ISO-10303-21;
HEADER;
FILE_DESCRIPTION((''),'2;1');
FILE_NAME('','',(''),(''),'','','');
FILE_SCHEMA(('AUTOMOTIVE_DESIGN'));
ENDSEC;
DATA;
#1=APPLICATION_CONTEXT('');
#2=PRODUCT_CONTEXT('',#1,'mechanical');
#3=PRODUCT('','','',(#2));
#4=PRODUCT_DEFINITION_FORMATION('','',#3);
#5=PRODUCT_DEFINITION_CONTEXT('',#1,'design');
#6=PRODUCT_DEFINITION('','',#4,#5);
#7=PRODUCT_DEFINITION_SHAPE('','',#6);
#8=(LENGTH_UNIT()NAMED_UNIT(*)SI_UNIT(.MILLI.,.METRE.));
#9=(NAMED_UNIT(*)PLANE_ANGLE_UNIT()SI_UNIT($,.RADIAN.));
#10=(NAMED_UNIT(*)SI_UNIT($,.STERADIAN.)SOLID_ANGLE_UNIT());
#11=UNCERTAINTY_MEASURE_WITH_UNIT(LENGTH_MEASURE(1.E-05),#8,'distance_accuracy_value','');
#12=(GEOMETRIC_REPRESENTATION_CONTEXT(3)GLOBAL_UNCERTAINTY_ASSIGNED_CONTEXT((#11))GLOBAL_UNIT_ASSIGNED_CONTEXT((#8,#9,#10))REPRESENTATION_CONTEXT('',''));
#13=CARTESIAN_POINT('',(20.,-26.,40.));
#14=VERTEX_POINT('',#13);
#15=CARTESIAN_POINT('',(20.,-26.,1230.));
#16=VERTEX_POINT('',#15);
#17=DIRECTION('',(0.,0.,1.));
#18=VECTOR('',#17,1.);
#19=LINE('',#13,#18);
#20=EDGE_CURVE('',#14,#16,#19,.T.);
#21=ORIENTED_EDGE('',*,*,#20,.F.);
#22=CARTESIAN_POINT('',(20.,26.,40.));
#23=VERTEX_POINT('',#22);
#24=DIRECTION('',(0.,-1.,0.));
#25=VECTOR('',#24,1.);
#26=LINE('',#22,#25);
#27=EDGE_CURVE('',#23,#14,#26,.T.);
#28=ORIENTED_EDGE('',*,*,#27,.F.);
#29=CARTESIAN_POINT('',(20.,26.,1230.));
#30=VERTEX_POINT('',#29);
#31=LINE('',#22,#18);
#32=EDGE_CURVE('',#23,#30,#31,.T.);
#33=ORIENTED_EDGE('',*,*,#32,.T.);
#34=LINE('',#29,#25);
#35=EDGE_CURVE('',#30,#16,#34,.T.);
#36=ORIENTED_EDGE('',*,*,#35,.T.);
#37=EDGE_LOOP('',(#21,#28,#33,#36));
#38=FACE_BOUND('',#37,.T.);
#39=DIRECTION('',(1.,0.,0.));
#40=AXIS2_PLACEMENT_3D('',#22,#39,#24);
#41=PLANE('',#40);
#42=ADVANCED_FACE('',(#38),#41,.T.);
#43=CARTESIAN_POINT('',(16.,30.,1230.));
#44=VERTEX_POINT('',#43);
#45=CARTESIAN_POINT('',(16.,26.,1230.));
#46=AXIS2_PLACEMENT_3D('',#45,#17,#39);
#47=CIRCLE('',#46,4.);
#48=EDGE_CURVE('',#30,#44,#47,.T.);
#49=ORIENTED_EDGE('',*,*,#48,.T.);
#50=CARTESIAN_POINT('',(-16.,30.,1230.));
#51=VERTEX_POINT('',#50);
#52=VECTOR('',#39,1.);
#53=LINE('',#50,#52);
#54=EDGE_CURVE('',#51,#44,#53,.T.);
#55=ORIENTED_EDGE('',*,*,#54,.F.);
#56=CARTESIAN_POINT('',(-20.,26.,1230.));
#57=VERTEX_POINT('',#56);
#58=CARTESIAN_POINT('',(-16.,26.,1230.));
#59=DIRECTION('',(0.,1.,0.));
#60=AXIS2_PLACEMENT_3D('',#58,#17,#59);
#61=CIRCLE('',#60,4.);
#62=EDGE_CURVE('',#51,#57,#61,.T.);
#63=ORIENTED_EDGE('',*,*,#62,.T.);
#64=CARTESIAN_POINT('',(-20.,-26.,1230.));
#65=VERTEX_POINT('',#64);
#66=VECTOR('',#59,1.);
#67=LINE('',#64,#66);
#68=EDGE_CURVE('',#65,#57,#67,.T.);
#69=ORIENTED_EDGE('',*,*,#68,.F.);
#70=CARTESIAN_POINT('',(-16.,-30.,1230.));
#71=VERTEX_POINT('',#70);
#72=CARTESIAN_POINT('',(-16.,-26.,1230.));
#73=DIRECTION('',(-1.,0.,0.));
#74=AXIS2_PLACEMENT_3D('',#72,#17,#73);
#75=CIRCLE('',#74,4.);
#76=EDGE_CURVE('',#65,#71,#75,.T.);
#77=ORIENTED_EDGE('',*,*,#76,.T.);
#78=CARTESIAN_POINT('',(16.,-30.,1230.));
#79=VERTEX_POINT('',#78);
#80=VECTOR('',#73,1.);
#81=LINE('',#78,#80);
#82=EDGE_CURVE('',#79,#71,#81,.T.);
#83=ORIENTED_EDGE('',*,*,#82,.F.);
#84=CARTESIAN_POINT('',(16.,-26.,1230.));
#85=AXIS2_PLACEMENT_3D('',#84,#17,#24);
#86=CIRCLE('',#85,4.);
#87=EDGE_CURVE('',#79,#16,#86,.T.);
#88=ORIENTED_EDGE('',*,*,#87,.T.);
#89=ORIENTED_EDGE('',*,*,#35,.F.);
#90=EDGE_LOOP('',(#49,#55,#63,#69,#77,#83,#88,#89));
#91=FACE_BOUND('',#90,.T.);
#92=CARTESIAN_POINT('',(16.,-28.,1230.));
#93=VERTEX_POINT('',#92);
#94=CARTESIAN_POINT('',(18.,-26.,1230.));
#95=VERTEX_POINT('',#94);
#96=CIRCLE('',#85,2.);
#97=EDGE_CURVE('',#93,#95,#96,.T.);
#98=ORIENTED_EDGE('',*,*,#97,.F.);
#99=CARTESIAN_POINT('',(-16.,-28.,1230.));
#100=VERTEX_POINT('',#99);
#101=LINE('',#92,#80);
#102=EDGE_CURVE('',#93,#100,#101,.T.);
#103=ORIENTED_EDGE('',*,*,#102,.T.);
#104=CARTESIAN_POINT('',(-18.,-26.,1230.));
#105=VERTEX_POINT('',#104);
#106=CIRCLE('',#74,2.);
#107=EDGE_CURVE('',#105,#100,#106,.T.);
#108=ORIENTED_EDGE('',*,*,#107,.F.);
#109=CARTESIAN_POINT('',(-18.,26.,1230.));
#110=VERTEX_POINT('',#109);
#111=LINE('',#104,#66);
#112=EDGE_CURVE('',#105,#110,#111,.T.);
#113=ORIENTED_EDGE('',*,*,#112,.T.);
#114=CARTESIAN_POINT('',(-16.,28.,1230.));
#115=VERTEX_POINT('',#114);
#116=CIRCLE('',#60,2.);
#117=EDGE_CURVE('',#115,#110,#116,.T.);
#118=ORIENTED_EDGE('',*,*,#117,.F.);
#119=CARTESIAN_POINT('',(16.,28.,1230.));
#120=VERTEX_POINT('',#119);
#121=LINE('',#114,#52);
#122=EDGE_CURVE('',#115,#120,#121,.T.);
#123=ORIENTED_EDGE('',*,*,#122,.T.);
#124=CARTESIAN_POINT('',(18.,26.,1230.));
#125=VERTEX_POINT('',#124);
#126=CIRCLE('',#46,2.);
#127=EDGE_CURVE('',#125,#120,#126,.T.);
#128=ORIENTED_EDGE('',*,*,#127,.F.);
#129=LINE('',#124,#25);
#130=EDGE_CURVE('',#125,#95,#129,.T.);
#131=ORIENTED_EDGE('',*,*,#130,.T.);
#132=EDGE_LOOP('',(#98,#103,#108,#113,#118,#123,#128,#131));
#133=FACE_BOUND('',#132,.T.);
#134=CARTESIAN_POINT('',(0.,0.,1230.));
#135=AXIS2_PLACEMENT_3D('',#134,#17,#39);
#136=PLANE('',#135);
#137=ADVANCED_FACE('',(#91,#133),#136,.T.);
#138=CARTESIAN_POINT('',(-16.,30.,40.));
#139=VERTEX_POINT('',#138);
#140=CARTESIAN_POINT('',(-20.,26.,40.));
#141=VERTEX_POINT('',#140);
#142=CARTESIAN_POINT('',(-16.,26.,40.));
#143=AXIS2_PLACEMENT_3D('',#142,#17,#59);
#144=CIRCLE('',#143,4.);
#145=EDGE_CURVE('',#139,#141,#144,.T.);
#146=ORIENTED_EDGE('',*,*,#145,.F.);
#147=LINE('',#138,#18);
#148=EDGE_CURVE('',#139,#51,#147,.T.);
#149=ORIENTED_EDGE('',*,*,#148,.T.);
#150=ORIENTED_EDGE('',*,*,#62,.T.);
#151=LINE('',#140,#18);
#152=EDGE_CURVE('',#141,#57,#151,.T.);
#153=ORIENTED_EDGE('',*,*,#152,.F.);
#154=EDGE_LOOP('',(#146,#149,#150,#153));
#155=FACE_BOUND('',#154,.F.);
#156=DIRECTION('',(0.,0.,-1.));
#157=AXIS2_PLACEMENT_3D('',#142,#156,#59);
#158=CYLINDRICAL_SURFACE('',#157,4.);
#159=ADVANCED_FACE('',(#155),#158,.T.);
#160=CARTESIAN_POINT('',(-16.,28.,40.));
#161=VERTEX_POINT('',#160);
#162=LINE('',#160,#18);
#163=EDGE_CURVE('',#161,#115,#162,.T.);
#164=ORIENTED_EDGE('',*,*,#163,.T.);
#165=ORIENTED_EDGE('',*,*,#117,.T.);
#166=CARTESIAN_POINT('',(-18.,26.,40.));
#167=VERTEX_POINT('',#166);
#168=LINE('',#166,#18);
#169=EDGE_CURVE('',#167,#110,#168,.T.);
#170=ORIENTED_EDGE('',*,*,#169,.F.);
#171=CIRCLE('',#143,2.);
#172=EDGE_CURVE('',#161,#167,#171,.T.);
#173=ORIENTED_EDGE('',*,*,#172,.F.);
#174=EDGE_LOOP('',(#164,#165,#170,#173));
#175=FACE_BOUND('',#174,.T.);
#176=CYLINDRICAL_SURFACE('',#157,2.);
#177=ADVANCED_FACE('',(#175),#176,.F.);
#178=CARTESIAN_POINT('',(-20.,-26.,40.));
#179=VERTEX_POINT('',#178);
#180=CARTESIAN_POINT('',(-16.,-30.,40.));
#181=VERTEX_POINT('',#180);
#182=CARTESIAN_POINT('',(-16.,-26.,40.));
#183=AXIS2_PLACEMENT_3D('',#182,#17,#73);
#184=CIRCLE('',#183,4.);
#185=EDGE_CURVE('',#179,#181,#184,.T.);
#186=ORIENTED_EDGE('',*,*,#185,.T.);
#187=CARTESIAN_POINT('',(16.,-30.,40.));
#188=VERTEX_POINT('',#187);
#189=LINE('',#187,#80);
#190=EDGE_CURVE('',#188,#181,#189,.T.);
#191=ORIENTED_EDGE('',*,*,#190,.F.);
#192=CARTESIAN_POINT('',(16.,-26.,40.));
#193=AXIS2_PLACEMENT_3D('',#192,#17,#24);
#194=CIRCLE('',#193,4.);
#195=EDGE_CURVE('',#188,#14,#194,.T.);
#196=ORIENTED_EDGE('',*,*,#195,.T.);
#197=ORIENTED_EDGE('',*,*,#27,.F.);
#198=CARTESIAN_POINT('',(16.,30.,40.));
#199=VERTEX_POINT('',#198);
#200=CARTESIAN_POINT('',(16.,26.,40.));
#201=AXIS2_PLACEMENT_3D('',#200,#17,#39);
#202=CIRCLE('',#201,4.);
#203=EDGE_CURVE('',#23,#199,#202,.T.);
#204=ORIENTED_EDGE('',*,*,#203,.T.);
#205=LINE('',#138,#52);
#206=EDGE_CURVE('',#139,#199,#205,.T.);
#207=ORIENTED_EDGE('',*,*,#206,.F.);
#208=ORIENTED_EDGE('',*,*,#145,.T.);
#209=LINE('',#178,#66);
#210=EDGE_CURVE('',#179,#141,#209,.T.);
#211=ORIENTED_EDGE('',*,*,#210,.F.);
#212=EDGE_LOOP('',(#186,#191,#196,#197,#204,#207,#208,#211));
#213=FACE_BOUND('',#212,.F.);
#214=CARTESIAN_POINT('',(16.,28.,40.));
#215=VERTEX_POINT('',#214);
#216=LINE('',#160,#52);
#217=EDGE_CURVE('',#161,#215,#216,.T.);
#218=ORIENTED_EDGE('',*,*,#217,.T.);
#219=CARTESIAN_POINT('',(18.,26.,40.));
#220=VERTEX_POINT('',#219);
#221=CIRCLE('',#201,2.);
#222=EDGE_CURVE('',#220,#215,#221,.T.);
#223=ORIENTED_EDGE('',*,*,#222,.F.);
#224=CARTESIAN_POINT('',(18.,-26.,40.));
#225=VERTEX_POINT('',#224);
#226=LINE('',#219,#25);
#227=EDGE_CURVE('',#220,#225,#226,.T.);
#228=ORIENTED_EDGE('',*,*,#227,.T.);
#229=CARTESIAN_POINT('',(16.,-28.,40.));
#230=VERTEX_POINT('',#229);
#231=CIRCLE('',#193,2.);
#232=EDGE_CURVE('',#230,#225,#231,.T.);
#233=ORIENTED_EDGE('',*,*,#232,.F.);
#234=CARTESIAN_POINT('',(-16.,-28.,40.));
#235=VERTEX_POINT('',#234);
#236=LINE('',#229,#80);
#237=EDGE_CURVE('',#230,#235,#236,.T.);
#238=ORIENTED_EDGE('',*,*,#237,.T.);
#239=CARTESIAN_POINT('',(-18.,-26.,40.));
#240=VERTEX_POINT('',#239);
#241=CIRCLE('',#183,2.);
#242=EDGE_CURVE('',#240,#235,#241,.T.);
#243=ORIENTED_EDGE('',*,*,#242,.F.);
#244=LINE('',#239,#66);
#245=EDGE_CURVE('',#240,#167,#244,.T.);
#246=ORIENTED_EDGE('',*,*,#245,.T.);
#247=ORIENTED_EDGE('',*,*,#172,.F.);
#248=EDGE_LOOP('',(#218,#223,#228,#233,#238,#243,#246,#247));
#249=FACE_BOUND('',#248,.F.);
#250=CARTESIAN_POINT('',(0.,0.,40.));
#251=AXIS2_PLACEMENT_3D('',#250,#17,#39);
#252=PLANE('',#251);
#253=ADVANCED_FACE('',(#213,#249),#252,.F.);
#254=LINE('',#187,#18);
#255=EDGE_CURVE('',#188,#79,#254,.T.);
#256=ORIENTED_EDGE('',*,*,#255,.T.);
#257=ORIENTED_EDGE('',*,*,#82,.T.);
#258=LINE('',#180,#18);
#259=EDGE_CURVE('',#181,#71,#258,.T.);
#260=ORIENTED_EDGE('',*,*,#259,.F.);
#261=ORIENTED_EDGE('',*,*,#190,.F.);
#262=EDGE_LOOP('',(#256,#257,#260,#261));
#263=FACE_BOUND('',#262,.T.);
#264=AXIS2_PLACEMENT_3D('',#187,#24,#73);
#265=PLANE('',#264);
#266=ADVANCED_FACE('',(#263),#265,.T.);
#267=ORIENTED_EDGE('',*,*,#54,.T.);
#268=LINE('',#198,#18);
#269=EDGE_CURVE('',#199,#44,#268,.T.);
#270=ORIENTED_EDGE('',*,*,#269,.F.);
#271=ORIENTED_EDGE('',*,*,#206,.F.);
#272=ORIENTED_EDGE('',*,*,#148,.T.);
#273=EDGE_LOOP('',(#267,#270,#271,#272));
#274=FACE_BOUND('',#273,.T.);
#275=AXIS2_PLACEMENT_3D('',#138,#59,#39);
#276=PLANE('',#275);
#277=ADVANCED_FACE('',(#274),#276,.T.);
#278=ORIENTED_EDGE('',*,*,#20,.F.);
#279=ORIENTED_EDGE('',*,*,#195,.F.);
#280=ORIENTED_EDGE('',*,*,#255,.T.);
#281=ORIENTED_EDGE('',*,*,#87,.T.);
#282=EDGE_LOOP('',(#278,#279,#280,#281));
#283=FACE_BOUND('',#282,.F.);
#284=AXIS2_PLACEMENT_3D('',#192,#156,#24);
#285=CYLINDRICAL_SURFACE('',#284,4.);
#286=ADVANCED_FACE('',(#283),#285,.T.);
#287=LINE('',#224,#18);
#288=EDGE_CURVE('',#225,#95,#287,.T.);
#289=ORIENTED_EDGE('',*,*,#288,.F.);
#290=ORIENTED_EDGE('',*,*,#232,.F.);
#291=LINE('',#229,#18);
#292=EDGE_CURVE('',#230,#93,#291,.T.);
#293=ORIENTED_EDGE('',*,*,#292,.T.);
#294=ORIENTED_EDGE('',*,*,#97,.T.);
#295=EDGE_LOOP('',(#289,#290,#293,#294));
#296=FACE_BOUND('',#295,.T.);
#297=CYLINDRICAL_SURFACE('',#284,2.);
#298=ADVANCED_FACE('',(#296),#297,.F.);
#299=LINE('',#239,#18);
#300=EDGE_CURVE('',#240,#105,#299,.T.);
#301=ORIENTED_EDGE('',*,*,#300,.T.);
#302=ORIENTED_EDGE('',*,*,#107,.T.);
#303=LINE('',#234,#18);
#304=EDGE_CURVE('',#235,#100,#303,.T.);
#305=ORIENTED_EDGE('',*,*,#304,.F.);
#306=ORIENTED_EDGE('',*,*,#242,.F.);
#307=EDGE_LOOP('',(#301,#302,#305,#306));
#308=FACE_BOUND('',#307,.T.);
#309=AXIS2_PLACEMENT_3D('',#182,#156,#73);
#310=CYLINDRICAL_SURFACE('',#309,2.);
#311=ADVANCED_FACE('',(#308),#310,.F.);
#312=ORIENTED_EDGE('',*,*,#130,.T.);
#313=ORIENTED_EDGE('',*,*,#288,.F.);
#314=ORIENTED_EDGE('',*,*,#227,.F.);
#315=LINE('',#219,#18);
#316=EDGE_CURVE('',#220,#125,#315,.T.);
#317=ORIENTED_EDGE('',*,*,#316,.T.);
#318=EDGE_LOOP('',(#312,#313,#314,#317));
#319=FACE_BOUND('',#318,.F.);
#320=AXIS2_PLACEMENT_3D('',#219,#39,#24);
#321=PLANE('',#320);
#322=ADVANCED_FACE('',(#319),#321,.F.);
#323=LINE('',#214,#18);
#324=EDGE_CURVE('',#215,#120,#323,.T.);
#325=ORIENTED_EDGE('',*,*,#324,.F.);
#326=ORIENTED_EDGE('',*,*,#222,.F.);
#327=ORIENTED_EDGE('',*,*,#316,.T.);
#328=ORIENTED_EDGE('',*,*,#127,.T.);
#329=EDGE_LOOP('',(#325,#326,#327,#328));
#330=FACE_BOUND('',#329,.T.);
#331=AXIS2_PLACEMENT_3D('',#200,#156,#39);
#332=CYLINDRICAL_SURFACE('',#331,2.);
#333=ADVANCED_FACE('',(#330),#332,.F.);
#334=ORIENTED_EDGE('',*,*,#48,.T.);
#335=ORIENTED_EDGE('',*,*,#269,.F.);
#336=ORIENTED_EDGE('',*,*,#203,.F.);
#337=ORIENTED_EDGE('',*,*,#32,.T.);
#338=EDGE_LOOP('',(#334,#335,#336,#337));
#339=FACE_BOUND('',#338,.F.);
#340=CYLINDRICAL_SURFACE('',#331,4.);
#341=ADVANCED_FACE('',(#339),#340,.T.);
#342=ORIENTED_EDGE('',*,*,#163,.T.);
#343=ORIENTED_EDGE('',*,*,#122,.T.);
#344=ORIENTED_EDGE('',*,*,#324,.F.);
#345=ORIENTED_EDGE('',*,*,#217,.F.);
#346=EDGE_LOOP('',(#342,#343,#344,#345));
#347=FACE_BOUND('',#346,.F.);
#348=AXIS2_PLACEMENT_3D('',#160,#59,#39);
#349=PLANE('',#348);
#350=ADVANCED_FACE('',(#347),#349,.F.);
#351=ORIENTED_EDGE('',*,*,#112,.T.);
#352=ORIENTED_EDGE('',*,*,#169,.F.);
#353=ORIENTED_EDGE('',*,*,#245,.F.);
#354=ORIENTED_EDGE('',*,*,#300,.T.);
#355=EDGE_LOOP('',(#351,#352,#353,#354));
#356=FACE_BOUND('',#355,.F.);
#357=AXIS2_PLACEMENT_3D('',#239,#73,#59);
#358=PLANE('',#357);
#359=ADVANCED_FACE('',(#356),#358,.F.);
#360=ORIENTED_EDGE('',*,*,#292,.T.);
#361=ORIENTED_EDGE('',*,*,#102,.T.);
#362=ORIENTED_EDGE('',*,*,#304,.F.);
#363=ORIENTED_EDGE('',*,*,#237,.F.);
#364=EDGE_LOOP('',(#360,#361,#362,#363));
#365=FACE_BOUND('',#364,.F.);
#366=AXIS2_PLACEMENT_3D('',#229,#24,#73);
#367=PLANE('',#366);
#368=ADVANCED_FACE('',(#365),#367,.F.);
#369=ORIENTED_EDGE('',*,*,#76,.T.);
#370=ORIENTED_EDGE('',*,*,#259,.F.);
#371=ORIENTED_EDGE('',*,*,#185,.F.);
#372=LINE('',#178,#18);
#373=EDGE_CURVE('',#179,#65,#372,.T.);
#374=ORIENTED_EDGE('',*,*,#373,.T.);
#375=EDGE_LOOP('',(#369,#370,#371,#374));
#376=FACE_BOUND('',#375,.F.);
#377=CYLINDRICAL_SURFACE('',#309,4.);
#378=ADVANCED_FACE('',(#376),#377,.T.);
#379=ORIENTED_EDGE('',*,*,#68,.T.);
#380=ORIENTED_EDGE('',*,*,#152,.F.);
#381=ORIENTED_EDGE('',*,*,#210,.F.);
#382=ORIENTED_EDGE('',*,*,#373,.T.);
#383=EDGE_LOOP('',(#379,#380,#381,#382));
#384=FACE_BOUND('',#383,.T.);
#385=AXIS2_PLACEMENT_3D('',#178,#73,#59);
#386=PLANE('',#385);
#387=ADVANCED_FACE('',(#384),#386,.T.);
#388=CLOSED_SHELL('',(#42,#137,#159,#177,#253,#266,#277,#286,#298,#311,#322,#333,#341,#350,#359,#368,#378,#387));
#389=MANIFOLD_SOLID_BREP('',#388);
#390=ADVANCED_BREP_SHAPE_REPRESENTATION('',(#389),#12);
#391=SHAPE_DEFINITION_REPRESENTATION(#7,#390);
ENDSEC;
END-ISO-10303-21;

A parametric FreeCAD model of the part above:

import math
import FreeCAD as App
import Part
import Sketcher
from FreeCAD import Vector

doc = App.newDocument("Part")
body = doc.addObject("PartDesign::Body", "Body")

# Sketch on XY plane
sketch1 = doc.addObject("Sketcher::SketchObject", "Sketch")
body.addObject(sketch1)
sketch1.AttachmentSupport = (doc.XY_Plane, [""])
sketch1.MapMode = "FlatFace"
sketch1.AttachmentOffset = App.Placement(Vector(0, 0, 40), App.Rotation())
sketch1.addGeometry([
    Part.LineSegment(Vector(-20, 26, 0), Vector(-20, -26, 0)),  # 0
    Part.ArcOfCircle(Part.Circle(Vector(-16, -26, 0), Vector(0, 0, 1), 4), math.radians(180), math.radians(270)),  # 1
    Part.LineSegment(Vector(-16, -30, 0), Vector(16, -30, 0)),  # 2
    Part.ArcOfCircle(Part.Circle(Vector(16, -26, 0), Vector(0, 0, 1), 4), math.radians(-90), math.radians(0)),  # 3
    Part.LineSegment(Vector(20, -26, 0), Vector(20, 26, 0)),  # 4
    Part.ArcOfCircle(Part.Circle(Vector(16, 26, 0), Vector(0, 0, 1), 4), math.radians(0), math.radians(90)),  # 5
    Part.LineSegment(Vector(16, 30, 0), Vector(-16, 30, 0)),  # 6
    Part.ArcOfCircle(Part.Circle(Vector(-16, 26, 0), Vector(0, 0, 1), 4), math.radians(90), math.radians(180)),  # 7
    Part.ArcOfCircle(Part.Circle(Vector(-16, 26, 0), Vector(0, 0, 1), 2), math.radians(90), math.radians(180)),  # 8
    Part.LineSegment(Vector(-16, 28, 0), Vector(16, 28, 0)),  # 9
    Part.ArcOfCircle(Part.Circle(Vector(16, 26, 0), Vector(0, 0, 1), 2), math.radians(0), math.radians(90)),  # 10
    Part.LineSegment(Vector(18, 26, 0), Vector(18, -26, 0)),  # 11
    Part.ArcOfCircle(Part.Circle(Vector(16, -26, 0), Vector(0, 0, 1), 2), math.radians(-90), math.radians(0)),  # 12
    Part.LineSegment(Vector(16, -28, 0), Vector(-16, -28, 0)),  # 13
    Part.ArcOfCircle(Part.Circle(Vector(-16, -26, 0), Vector(0, 0, 1), 2), math.radians(180), math.radians(270)),  # 14
    Part.LineSegment(Vector(-18, -26, 0), Vector(-18, 26, 0)),  # 15
], False)
sketch1.addConstraint([
    Sketcher.Constraint("Tangent", 0, 2, 1, 1),
    Sketcher.Constraint("Tangent", 1, 2, 2, 1),
    Sketcher.Constraint("Tangent", 2, 2, 3, 1),
    Sketcher.Constraint("Tangent", 3, 2, 4, 1),
    Sketcher.Constraint("Tangent", 4, 2, 5, 1),
    Sketcher.Constraint("Tangent", 5, 2, 6, 1),
    Sketcher.Constraint("Tangent", 6, 2, 7, 1),
    Sketcher.Constraint("Tangent", 7, 2, 0, 1),
    Sketcher.Constraint("Tangent", 8, 1, 9, 1),
    Sketcher.Constraint("Tangent", 9, 2, 10, 2),
    Sketcher.Constraint("Tangent", 10, 1, 11, 1),
    Sketcher.Constraint("Tangent", 11, 2, 12, 2),
    Sketcher.Constraint("Tangent", 12, 1, 13, 1),
    Sketcher.Constraint("Tangent", 13, 2, 14, 2),
    Sketcher.Constraint("Tangent", 14, 1, 15, 1),
    Sketcher.Constraint("Tangent", 15, 2, 8, 2),
    Sketcher.Constraint("Vertical", 0),
    Sketcher.Constraint("Horizontal", 2),
    Sketcher.Constraint("Vertical", 4),
    Sketcher.Constraint("Horizontal", 6),
    Sketcher.Constraint("Horizontal", 9),
    Sketcher.Constraint("Vertical", 11),
    Sketcher.Constraint("Horizontal", 13),
    Sketcher.Constraint("Vertical", 15),
    Sketcher.Constraint("Coincident", 8, 3, 7, 3),
    Sketcher.Constraint("Coincident", 10, 3, 5, 3),
    Sketcher.Constraint("Coincident", 12, 3, 3, 3),
    Sketcher.Constraint("Equal", 1, 3),
    Sketcher.Constraint("Equal", 3, 5),
    Sketcher.Constraint("Equal", 5, 7),
    Sketcher.Constraint("Equal", 12, 14),
    Sketcher.Constraint("Symmetric", 1, 3, 5, 3, -1, 1),
    Sketcher.Constraint("Radius", 1, 4.0),
    Sketcher.Constraint("Radius", 8, 2.0),
    Sketcher.Constraint("DistanceX", 0, 2, -1, 1, 20.0),
    Sketcher.Constraint("DistanceY", 1, 2, -1, 1, 30.0),
])
pad1 = doc.addObject("PartDesign::Pad", "Pad")
body.addObject(pad1)
pad1.Profile = sketch1
pad1.Length = 1190

doc.recompute()
